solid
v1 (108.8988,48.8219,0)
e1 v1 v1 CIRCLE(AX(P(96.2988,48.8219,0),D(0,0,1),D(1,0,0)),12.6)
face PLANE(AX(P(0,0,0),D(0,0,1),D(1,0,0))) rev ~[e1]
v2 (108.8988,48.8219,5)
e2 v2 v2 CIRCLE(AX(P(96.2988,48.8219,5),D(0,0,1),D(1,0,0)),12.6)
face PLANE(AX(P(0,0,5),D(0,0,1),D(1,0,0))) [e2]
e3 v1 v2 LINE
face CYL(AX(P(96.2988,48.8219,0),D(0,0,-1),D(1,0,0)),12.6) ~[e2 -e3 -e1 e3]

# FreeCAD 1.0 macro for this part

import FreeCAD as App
import Part
import Sketcher
from FreeCAD import Vector
Q = App.Units.Quantity

doc = App.newDocument("Part")
body = doc.addObject("PartDesign::Body", "Body")

# Sketch on XY plane
sketch1 = body.newObject("Sketcher::SketchObject", "Sketch")
sketch1.AttachmentSupport = (doc.getObject("XY_Plane"), [""])
sketch1.MapMode = "FlatFace"
sketch1.addGeometry(Part.Circle(Vector(96, 49, 0), Vector(0, 0, 1), 13), False)
sketch1.addConstraint([
    Sketcher.Constraint("Diameter", 0, Q("25.2 mm")),
    Sketcher.Constraint("DistanceY", -1, 1, 0, 3, Q("48.822 mm")),
    Sketcher.Constraint("DistanceX", -1, 1, 0, 3, Q("96.2988 mm")),
])
pad1 = body.newObject("PartDesign::Pad", "Pad")
pad1.Profile = sketch1
pad1.Length = 5

doc.recompute()
